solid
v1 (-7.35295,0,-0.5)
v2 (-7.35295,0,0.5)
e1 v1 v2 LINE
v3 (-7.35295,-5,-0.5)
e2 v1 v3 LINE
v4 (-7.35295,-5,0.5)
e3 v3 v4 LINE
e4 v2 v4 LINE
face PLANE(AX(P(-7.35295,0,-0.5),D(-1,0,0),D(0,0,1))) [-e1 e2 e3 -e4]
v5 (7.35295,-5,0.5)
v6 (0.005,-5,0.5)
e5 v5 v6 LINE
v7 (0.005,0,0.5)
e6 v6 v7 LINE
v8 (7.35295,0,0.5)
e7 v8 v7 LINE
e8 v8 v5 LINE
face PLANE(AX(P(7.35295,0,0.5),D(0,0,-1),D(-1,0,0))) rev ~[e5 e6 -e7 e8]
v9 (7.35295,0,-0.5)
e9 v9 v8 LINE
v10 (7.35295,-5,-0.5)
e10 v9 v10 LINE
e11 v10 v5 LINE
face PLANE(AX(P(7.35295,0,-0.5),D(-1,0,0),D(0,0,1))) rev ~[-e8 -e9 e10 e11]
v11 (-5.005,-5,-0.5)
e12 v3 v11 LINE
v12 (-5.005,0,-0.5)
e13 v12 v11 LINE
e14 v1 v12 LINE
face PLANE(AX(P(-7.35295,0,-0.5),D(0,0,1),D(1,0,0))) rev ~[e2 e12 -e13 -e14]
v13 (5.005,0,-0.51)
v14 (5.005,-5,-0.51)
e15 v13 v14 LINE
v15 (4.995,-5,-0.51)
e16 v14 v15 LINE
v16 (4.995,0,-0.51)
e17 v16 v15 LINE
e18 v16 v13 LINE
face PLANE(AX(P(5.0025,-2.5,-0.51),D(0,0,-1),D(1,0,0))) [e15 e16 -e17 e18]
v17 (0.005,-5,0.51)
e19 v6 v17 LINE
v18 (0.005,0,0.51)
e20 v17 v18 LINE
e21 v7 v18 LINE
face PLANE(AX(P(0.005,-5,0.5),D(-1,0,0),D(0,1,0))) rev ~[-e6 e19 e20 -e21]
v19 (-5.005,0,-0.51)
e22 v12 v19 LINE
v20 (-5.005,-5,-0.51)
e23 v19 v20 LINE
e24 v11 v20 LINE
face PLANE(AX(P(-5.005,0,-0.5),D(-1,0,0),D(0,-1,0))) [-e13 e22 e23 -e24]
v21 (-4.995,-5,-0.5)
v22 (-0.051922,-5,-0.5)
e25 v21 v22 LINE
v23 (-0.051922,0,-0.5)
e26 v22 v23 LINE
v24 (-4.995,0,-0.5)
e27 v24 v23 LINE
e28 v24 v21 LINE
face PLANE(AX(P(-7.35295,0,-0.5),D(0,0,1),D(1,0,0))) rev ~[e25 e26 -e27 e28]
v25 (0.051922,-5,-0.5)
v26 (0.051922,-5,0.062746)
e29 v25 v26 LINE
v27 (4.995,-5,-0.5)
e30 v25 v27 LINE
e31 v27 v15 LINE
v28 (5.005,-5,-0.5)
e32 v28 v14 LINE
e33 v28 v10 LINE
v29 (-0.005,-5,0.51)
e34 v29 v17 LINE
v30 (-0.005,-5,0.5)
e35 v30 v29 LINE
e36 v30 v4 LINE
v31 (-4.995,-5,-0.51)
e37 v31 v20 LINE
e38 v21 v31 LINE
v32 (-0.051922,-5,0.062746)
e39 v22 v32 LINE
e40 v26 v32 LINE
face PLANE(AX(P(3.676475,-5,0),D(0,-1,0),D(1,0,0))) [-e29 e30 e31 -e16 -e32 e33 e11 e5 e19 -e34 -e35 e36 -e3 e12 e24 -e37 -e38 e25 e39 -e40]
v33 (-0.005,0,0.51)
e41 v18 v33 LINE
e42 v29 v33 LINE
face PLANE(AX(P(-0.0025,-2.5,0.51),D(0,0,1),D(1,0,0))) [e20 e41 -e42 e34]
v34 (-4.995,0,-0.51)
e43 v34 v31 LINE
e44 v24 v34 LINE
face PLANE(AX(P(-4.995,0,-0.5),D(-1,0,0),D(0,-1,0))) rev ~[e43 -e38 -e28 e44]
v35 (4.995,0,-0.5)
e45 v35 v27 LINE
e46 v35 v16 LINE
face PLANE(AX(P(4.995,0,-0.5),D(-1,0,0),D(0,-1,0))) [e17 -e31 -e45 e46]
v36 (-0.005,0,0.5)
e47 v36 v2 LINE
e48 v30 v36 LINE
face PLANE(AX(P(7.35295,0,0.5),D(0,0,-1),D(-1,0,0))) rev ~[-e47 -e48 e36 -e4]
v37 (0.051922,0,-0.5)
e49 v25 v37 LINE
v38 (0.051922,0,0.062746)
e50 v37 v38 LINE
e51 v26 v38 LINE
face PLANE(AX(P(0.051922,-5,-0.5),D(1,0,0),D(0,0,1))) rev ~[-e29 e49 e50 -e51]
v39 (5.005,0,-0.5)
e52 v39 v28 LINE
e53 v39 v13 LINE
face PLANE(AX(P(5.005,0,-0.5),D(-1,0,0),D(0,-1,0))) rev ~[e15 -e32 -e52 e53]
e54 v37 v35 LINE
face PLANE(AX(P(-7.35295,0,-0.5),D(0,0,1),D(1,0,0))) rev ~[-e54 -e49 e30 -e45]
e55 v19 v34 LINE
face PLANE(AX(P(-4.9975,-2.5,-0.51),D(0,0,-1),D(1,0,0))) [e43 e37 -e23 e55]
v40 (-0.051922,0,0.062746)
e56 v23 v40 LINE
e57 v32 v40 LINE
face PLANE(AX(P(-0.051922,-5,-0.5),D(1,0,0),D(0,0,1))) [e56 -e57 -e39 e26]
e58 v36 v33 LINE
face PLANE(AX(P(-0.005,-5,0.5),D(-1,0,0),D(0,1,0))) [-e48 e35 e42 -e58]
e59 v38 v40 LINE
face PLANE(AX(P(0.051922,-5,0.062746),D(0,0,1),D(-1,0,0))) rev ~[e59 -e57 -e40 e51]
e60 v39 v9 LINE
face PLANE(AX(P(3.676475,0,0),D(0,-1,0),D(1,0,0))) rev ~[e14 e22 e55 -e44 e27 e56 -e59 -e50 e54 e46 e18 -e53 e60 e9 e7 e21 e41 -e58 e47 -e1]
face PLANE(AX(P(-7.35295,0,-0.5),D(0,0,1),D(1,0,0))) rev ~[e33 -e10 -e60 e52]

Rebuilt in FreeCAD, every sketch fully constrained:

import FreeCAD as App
import Part
import Sketcher
from FreeCAD import Vector

doc = App.newDocument("Part")
params = doc.addObject("Spreadsheet::Sheet", "Params")
for row, (alias, value) in enumerate([
    ("sketch1_height", "1 mm"),
    ("pad1_length", "5 mm"),
    ("sketch3_height", "5 mm"),
    ("sketch3_width", "0.01 mm"),
    ("pad2_length", "0.01 mm"),
    ("sketch4_height", "5 mm"),
    ("sketch4_width", "0.01 mm"),
    ("pad3_length", "0.01 mm"),
], start=1):
    params.set(f"A{row}", alias)
    params.set(f"B{row}", "=" + value)
    params.setAlias(f"B{row}", alias)

body = doc.addObject("PartDesign::Body", "Body")

sketch1 = body.newObject("Sketcher::SketchObject", "Sketch")
sketch1.AttachmentSupport = (doc.getObject("XZ_Plane"), [""])
sketch1.MapMode = "FlatFace"
sketch1.addGeometry(Part.LineSegment(Vector(7.35295, -0.5, 0), Vector(7.35295, 0.5, 0)), False)
sketch1.addGeometry(Part.LineSegment(Vector(7.35295, 0.5, 0), Vector(-7.35295, 0.5, 0)), False)
sketch1.addGeometry(Part.LineSegment(Vector(-7.35295, 0.5, 0), Vector(-7.35295, -0.5, 0)), False)
sketch1.addGeometry(Part.LineSegment(Vector(-7.35295, -0.5, 0), Vector(7.35295, -0.5, 0)), False)
sketch1.addConstraint(Sketcher.Constraint("Coincident", 0, 2, 1, 1))
sketch1.addConstraint(Sketcher.Constraint("Coincident", 1, 2, 2, 1))
sketch1.addConstraint(Sketcher.Constraint("Coincident", 2, 2, 3, 1))
sketch1.addConstraint(Sketcher.Constraint("Coincident", 3, 2, 0, 1))
sketch1.addConstraint(Sketcher.Constraint("Vertical", 0))
sketch1.addConstraint(Sketcher.Constraint("Horizontal", 1))
sketch1.addConstraint(Sketcher.Constraint("Vertical", 2))
sketch1.addConstraint(Sketcher.Constraint("Horizontal", 3))
sketch1.addConstraint(Sketcher.Constraint("Symmetric", 0, 2, 2, 2, -1, 1))
sketch1.addConstraint(Sketcher.Constraint("DistanceY", 0, 1, 0, 2, 1.0))
sketch1.addConstraint(Sketcher.Constraint("DistanceX", 1, 2, 1, 1, 14.7059))
sketch1.setExpression("Constraints[9]", "Params.sketch1_height")
pad1 = body.newObject("PartDesign::Pad", "Pad")
pad1.Profile = sketch1
pad1.setExpression("Length", "Params.pad1_length")

sketch2 = body.newObject("Sketcher::SketchObject", "Sketch001")
sketch2.AttachmentSupport = (doc.getObject("XZ_Plane"), [""])
sketch2.MapMode = "FlatFace"
sketch2.AttachmentOffset = App.Placement(Vector(0, 0, 5), App.Rotation())
sketch2.addGeometry(Part.LineSegment(Vector(-0.051922, 0.062746, 0), Vector(-0.051922, -0.5, 0)), False)
sketch2.addGeometry(Part.LineSegment(Vector(-0.051922, -0.5, 0), Vector(0.051922, -0.5, 0)), False)
sketch2.addGeometry(Part.LineSegment(Vector(0.051922, -0.5, 0), Vector(0.051922, 0.062746, 0)), False)
sketch2.addGeometry(Part.LineSegment(Vector(0.051922, 0.062746, 0), Vector(-0.051922, 0.062746, 0)), False)
sketch2.addConstraint(Sketcher.Constraint("Coincident", 0, 2, 1, 1))
sketch2.addConstraint(Sketcher.Constraint("Coincident", 1, 2, 2, 1))
sketch2.addConstraint(Sketcher.Constraint("Coincident", 2, 2, 3, 1))
sketch2.addConstraint(Sketcher.Constraint("Coincident", 3, 2, 0, 1))
sketch2.addConstraint(Sketcher.Constraint("Vertical", 0))
sketch2.addConstraint(Sketcher.Constraint("Horizontal", 1))
sketch2.addConstraint(Sketcher.Constraint("Vertical", 2))
sketch2.addConstraint(Sketcher.Constraint("Horizontal", 3))
sketch2.addConstraint(Sketcher.Constraint("DistanceY", 0, 2, -1, 1, 0.5))
sketch2.addConstraint(Sketcher.Constraint("DistanceX", 1, 1, 1, 2, 0.103844))
sketch2.addConstraint(Sketcher.Constraint("DistanceY", 0, 2, 0, 1, 0.562747))
sketch2.addConstraint(Sketcher.Constraint("DistanceX", 0, 2, -1, 1, 0.051922))
pocket1 = body.newObject("PartDesign::Pocket", "Pocket")
pocket1.Profile = sketch2
pocket1.Type = "ThroughAll"

sketch3 = body.newObject("Sketcher::SketchObject", "Sketch002")
sketch3.AttachmentSupport = (doc.getObject("XY_Plane"), [""])
sketch3.MapMode = "FlatFace"
sketch3.AttachmentOffset = App.Placement(Vector(0, 0, 0.5), App.Rotation())
sketch3.addGeometry(Part.LineSegment(Vector(-0.005, 0, 0), Vector(-0.005, -5, 0)), False)
sketch3.addGeometry(Part.LineSegment(Vector(-0.005, -5, 0), Vector(0.005, -5, 0)), False)
sketch3.addGeometry(Part.LineSegment(Vector(0.005, -5, 0), Vector(0.005, 0, 0)), False)
sketch3.addGeometry(Part.LineSegment(Vector(0.005, 0, 0), Vector(-0.005, 0, 0)), False)
sketch3.addConstraint(Sketcher.Constraint("Coincident", 0, 2, 1, 1))
sketch3.addConstraint(Sketcher.Constraint("Coincident", 1, 2, 2, 1))
sketch3.addConstraint(Sketcher.Constraint("Coincident", 2, 2, 3, 1))
sketch3.addConstraint(Sketcher.Constraint("Coincident", 3, 2, 0, 1))
sketch3.addConstraint(Sketcher.Constraint("Vertical", 0))
sketch3.addConstraint(Sketcher.Constraint("Horizontal", 1))
sketch3.addConstraint(Sketcher.Constraint("Vertical", 2))
sketch3.addConstraint(Sketcher.Constraint("Horizontal", 3))
sketch3.addConstraint(Sketcher.Constraint("Symmetric", 2, 2, 3, 2, -1, 1))
sketch3.addConstraint(Sketcher.Constraint("DistanceY", 0, 2, 0, 1, 5.0))
sketch3.addConstraint(Sketcher.Constraint("DistanceX", 1, 1, 1, 2, 0.01))
sketch3.setExpression("Constraints[9]", "Params.sketch3_height")
sketch3.setExpression("Constraints[10]", "Params.sketch3_width")
pad2 = body.newObject("PartDesign::Pad", "Pad001")
pad2.Profile = sketch3
pad2.setExpression("Length", "Params.pad2_length")

sketch4 = body.newObject("Sketcher::SketchObject", "Sketch003")
sketch4.AttachmentSupport = (doc.getObject("XY_Plane"), [""])
sketch4.MapMode = "FlatFace"
sketch4.AttachmentOffset = App.Placement(Vector(0, 0, -0.5), App.Rotation())
sketch4.addGeometry(Part.LineSegment(Vector(-4.995, 0, 0), Vector(-4.995, -5, 0)), False)
sketch4.addGeometry(Part.LineSegment(Vector(-4.995, -5, 0), Vector(-5.005, -5, 0)), False)
sketch4.addGeometry(Part.LineSegment(Vector(-5.005, -5, 0), Vector(-5.005, 0, 0)), False)
sketch4.addGeometry(Part.LineSegment(Vector(-5.005, 0, 0), Vector(-4.995, 0, 0)), False)
sketch4.addGeometry(Part.LineSegment(Vector(5.005, 0, 0), Vector(5.005, -5, 0)), False)
sketch4.addGeometry(Part.LineSegment(Vector(5.005, -5, 0), Vector(4.995, -5, 0)), False)
sketch4.addGeometry(Part.LineSegment(Vector(4.995, -5, 0), Vector(4.995, 0, 0)), False)
sketch4.addGeometry(Part.LineSegment(Vector(4.995, 0, 0), Vector(5.005, 0, 0)), False)
sketch4.addConstraint(Sketcher.Constraint("Coincident", 0, 2, 1, 1))
sketch4.addConstraint(Sketcher.Constraint("Coincident", 1, 2, 2, 1))
sketch4.addConstraint(Sketcher.Constraint("Coincident", 2, 2, 3, 1))
sketch4.addConstraint(Sketcher.Constraint("Coincident", 3, 2, 0, 1))
sketch4.addConstraint(Sketcher.Constraint("Coincident", 4, 2, 5, 1))
sketch4.addConstraint(Sketcher.Constraint("Coincident", 5, 2, 6, 1))
sketch4.addConstraint(Sketcher.Constraint("Coincident", 6, 2, 7, 1))
sketch4.addConstraint(Sketcher.Constraint("Coincident", 7, 2, 4, 1))
sketch4.addConstraint(Sketcher.Constraint("Vertical", 0))
sketch4.addConstraint(Sketcher.Constraint("Horizontal", 1))
sketch4.addConstraint(Sketcher.Constraint("Vertical", 2))
sketch4.addConstraint(Sketcher.Constraint("Horizontal", 3))
sketch4.addConstraint(Sketcher.Constraint("Vertical", 4))
sketch4.addConstraint(Sketcher.Constraint("Horizontal", 5))
sketch4.addConstraint(Sketcher.Constraint("Vertical", 6))
sketch4.addConstraint(Sketcher.Constraint("Horizontal", 7))
sketch4.addConstraint(Sketcher.Constraint("Symmetric", 3, 2, 6, 2, -1, 1))
sketch4.addConstraint(Sketcher.Constraint("Symmetric", 1, 2, 4, 2, -2))
sketch4.addConstraint(Sketcher.Constraint("PointOnObject", 2, 2, -1))
sketch4.addConstraint(Sketcher.Constraint("DistanceY", 0, 2, 0, 1, 5.0))
sketch4.addConstraint(Sketcher.Constraint("DistanceX", 0, 2, 4, 2, 10.0))
sketch4.addConstraint(Sketcher.Constraint("DistanceX", 1, 2, 1, 1, 0.01))
sketch4.setExpression("Constraints[19]", "Params.sketch4_height")
sketch4.setExpression("Constraints[21]", "Params.sketch4_width")
pad3 = body.newObject("PartDesign::Pad", "Pad002")
pad3.Profile = sketch4
pad3.setExpression("Length", "Params.pad3_length")
pad3.Reversed = True

doc.recompute()
